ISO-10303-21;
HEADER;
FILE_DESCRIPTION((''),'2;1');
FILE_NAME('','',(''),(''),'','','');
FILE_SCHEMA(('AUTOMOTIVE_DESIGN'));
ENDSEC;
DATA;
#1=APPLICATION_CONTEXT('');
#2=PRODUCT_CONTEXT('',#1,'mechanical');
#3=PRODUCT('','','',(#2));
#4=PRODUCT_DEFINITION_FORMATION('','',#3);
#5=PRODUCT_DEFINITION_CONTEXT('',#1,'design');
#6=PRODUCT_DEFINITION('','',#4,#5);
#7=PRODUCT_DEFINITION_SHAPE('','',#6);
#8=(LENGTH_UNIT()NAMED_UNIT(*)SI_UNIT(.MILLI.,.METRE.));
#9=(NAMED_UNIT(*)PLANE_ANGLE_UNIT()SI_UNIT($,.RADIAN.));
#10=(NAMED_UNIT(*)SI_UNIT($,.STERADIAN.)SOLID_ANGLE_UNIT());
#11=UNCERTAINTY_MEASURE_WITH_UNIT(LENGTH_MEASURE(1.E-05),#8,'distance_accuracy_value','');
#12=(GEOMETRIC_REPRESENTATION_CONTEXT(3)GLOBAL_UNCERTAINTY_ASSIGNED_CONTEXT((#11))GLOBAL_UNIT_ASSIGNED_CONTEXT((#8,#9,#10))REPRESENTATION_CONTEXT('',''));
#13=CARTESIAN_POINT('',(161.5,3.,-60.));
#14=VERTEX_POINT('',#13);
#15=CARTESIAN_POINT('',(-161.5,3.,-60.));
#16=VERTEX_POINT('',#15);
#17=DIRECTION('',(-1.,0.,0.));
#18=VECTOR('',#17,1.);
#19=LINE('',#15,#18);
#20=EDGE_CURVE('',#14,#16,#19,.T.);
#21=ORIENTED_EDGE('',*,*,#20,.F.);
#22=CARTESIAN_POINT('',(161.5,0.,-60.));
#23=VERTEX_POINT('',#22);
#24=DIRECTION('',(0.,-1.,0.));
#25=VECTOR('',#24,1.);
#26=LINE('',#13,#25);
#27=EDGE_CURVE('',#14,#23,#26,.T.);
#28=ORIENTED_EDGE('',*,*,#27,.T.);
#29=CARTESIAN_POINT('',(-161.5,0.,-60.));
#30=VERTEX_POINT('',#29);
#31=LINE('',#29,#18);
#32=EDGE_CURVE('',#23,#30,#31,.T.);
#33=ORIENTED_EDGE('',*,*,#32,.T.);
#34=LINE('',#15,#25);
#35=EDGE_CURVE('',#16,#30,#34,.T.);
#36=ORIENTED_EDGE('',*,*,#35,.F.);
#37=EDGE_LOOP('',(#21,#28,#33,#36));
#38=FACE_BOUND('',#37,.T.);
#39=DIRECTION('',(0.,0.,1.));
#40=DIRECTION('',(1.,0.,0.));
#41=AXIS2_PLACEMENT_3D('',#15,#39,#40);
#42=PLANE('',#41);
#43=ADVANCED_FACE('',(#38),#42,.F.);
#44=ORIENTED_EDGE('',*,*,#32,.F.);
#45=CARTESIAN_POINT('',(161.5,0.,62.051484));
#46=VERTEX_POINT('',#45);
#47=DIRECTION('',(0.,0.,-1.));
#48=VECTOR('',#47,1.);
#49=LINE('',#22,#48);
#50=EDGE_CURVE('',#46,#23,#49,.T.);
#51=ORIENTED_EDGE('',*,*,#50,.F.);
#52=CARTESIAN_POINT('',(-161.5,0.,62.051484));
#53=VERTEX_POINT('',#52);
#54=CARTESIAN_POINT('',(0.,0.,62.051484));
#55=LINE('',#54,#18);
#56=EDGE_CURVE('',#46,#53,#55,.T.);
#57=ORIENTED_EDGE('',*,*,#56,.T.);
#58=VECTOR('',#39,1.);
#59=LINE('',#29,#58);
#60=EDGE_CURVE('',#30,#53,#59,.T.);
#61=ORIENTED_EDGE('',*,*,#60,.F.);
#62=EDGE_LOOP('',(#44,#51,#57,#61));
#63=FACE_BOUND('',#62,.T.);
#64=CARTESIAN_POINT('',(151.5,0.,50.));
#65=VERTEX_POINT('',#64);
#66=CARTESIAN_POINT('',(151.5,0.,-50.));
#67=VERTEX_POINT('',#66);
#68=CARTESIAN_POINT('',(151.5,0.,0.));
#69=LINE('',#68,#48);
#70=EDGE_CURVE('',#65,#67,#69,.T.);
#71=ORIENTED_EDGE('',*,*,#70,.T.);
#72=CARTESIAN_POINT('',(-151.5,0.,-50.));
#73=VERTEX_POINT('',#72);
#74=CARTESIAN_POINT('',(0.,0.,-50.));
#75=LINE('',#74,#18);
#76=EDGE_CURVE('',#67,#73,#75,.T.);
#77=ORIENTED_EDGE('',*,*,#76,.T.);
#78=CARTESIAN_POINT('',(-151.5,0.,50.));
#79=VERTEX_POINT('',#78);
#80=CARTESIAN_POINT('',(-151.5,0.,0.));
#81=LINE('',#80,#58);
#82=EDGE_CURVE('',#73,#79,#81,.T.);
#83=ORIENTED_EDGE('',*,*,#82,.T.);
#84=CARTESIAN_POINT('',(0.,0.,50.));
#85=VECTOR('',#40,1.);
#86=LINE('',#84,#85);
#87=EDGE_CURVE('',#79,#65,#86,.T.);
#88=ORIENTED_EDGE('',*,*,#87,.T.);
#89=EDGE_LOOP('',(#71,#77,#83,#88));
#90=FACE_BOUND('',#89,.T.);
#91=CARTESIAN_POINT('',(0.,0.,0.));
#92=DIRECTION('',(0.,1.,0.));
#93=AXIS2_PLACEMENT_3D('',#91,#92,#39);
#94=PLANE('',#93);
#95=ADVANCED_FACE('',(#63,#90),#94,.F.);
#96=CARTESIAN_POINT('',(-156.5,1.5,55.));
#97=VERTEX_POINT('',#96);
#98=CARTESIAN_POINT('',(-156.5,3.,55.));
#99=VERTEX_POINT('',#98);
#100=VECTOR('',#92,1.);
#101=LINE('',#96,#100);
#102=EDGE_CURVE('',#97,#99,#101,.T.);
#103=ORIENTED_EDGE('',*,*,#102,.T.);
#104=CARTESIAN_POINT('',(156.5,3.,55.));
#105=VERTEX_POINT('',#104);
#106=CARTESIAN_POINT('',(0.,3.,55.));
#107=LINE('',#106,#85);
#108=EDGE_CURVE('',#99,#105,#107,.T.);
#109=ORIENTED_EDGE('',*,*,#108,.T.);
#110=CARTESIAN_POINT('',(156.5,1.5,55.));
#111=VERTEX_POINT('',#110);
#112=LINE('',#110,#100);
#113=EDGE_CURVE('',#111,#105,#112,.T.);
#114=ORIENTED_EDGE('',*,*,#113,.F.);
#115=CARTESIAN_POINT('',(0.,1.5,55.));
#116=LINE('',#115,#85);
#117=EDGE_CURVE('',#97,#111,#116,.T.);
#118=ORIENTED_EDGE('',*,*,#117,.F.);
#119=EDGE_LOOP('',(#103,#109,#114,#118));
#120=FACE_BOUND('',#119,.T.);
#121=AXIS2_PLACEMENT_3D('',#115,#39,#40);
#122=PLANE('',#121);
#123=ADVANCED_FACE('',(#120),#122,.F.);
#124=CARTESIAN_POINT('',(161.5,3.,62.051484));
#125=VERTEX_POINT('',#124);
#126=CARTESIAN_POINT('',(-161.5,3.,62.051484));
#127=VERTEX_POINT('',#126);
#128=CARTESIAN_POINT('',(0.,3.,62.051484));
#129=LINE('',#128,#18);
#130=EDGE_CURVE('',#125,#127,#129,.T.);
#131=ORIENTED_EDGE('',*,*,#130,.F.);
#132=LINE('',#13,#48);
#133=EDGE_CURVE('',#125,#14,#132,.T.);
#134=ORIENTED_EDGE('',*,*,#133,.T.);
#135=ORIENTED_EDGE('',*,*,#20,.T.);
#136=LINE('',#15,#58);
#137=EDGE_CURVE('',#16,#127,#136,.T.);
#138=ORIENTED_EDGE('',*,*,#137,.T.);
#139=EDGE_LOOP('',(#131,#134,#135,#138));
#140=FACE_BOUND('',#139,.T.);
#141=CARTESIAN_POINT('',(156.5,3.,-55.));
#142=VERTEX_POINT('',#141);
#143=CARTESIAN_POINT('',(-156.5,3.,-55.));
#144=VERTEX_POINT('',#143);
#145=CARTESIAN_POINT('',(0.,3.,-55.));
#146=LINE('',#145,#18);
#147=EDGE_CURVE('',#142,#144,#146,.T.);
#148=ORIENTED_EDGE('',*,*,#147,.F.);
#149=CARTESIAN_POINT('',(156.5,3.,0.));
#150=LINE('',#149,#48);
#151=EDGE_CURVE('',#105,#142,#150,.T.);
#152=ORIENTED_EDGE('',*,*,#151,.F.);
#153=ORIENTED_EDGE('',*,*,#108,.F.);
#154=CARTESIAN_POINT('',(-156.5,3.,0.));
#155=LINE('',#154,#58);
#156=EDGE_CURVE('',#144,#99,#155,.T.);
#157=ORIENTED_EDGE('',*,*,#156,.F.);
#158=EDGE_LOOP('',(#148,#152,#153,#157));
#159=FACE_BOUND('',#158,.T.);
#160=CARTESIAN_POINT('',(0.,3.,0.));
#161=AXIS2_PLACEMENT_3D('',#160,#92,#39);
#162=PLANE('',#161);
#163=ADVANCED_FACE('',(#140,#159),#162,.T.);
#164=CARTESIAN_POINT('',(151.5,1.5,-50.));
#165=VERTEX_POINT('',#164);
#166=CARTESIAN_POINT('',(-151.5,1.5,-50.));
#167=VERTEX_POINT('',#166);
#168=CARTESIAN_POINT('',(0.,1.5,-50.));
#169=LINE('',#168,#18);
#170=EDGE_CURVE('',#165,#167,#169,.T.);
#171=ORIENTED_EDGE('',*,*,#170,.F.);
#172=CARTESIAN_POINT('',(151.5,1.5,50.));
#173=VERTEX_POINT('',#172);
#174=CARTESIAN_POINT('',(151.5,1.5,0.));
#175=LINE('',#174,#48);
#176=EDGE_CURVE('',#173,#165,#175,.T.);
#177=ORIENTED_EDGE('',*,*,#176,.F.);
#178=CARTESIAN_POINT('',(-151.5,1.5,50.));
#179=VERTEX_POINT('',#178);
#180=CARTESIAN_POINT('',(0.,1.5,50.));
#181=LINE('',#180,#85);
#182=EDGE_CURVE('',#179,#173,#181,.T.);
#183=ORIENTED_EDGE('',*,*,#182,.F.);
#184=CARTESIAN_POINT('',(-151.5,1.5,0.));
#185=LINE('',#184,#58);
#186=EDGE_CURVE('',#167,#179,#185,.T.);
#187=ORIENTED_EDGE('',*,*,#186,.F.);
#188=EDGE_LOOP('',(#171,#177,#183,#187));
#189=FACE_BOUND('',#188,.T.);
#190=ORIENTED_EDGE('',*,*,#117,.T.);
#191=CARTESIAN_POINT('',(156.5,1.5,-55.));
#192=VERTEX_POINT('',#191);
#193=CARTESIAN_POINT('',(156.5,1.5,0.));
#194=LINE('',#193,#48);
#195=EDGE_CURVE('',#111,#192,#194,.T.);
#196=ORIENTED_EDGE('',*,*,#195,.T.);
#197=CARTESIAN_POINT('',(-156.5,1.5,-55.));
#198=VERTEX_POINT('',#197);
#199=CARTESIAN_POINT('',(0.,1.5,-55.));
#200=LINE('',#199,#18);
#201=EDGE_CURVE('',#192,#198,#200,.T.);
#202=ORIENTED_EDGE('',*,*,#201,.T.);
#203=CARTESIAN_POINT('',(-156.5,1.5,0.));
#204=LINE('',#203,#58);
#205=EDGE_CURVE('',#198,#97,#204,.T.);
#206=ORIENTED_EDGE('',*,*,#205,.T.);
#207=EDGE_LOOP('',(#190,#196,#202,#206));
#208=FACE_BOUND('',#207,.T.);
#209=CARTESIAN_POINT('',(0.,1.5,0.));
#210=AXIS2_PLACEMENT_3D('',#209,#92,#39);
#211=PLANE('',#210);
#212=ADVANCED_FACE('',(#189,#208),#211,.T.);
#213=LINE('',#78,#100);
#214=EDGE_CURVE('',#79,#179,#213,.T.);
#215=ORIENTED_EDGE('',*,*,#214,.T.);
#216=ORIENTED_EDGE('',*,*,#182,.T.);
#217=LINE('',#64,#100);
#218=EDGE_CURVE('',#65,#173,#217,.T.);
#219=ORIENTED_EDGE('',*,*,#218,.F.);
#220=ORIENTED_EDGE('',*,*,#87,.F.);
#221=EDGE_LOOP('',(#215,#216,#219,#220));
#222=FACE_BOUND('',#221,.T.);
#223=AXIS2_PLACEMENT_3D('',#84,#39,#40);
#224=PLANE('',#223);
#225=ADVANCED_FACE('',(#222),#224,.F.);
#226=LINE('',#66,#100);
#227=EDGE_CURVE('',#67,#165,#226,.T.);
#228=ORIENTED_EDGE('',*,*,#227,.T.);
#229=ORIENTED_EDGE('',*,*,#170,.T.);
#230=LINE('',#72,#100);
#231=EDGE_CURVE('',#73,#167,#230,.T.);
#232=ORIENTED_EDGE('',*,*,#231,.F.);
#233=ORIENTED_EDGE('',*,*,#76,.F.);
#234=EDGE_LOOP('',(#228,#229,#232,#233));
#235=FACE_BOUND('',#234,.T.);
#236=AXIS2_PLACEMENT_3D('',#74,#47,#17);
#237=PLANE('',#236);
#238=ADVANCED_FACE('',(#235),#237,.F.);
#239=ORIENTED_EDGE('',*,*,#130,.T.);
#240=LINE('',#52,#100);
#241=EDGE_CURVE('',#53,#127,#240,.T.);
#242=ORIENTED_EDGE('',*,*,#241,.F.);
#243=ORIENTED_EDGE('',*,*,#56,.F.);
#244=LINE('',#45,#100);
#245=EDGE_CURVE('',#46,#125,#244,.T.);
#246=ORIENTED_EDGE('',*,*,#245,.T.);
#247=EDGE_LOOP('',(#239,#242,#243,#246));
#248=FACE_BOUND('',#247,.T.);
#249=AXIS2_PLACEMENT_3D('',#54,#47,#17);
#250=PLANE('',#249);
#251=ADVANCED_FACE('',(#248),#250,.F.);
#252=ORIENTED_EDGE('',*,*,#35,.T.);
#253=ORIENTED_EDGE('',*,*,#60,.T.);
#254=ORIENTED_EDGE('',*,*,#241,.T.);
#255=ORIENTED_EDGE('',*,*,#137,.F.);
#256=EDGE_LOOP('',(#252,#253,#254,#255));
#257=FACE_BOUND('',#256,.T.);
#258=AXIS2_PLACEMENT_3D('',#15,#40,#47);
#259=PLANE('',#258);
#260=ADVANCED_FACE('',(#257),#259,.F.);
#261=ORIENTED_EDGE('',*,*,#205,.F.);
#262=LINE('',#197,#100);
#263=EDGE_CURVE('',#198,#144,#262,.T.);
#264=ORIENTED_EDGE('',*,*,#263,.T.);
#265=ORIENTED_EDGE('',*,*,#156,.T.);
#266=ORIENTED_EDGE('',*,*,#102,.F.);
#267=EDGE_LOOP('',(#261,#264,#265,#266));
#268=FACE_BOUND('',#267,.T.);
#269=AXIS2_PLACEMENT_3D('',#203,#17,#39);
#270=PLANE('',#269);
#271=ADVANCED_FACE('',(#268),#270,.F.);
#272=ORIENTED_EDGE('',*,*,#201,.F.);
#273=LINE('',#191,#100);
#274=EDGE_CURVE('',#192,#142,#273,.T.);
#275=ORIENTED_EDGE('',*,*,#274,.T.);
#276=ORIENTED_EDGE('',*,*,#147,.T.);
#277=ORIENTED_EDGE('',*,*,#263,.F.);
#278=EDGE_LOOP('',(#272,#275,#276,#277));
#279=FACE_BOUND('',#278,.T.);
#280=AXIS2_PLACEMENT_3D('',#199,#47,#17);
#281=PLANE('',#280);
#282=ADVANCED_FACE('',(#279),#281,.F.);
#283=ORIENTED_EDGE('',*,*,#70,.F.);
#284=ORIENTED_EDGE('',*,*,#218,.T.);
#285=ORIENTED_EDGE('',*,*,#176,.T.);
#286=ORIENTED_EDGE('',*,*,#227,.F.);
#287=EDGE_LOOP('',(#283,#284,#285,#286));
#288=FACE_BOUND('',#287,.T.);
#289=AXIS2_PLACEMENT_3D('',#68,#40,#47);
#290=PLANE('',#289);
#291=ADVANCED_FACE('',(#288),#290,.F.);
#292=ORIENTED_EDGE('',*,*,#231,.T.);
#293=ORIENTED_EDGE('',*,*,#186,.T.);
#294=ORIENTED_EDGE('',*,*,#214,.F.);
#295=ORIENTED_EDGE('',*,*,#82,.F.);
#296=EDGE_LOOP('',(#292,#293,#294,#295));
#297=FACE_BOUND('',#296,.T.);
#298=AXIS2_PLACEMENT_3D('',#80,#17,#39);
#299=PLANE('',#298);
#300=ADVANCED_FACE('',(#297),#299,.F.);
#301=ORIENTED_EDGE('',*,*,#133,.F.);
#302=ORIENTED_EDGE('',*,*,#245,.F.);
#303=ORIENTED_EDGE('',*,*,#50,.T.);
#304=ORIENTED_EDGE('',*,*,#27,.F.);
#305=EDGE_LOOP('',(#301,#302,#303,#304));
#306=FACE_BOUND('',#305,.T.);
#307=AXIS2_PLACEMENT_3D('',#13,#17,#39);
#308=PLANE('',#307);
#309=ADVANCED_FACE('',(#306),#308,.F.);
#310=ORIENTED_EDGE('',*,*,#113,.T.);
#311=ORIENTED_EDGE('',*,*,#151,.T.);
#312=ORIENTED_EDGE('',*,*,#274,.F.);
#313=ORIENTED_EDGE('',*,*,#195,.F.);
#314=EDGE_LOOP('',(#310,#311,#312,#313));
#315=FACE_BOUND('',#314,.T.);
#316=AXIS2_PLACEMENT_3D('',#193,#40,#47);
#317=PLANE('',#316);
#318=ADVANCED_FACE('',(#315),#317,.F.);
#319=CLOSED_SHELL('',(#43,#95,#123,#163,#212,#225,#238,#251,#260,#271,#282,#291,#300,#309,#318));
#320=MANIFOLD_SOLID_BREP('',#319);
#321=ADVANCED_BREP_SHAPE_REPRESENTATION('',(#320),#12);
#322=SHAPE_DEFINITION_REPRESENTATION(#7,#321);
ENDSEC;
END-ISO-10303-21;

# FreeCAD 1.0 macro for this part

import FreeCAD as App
import Part
import Sketcher
from FreeCAD import Vector
Q = App.Units.Quantity

doc = App.newDocument("Part")
body = doc.addObject("PartDesign::Body", "Body")

# Sketch on XZ plane
sketch1 = doc.addObject("Sketcher::SketchObject", "Sketch")
body.addObject(sketch1)
sketch1.AttachmentSupport = (doc.XZ_Plane, [""])
sketch1.MapMode = "FlatFace"
sketch1.addGeometry([
    Part.LineSegment(Vector(-162, -60, 0), Vector(-162, 60, 0)),
    Part.LineSegment(Vector(-162, 60, 0), Vector(162, 60, 0)),
    Part.LineSegment(Vector(162, 60, 0), Vector(162, -60, 0)),
    Part.LineSegment(Vector(162, -60, 0), Vector(-162, -60, 0)),
], False)
sketch1.addConstraint([
    Sketcher.Constraint("Coincident", 0, 2, 1, 1),
    Sketcher.Constraint("Coincident", 1, 2, 2, 1),
    Sketcher.Constraint("Coincident", 2, 2, 3, 1),
    Sketcher.Constraint("Coincident", 3, 2, 0, 1),
    Sketcher.Constraint("Vertical", 0),
    Sketcher.Constraint("Horizontal", 1),
    Sketcher.Constraint("Vertical", 2),
    Sketcher.Constraint("Horizontal", 3),
    Sketcher.Constraint("Symmetric", 0, 2, 2, 2, -1, 1),
    Sketcher.Constraint("DistanceX", 1, 1, 1, 2, Q("323 mm")),
    Sketcher.Constraint("DistanceY", 0, 1, 0, 2, Q("120 mm")),
])
pad1 = doc.addObject("PartDesign::Pad", "Pad")
body.addObject(pad1)
pad1.Profile = sketch1
pad1.Length = 3
pad1.Reversed = True

# Sketch on XZ plane
sketch2 = doc.addObject("Sketcher::SketchObject", "Sketch001")
body.addObject(sketch2)
sketch2.AttachmentSupport = (doc.XZ_Plane, [""])
sketch2.MapMode = "FlatFace"
sketch2.AttachmentOffset = App.Placement(Vector(0, 0, -3), App.Rotation())
sketch2.addGeometry([
    Part.LineSegment(Vector(-156, -55, 0), Vector(-156, 55, 0)),  # 0
    Part.LineSegment(Vector(-156, 55, 0), Vector(156, 55, 0)),  # 1
    Part.LineSegment(Vector(156, 55, 0), Vector(156, -55, 0)),  # 2
    Part.LineSegment(Vector(156, -55, 0), Vector(-156, -55, 0)),  # 3
    Part.LineSegment(Vector(152, 50, 0), Vector(-152, 50, 0)),  # 4
    Part.LineSegment(Vector(-152, 50, 0), Vector(-152, -50, 0)),  # 5
    Part.LineSegment(Vector(-152, -50, 0), Vector(152, -50, 0)),  # 6
    Part.LineSegment(Vector(152, -50, 0), Vector(152, 50, 0)),  # 7
], False)
sketch2.addConstraint([
    Sketcher.Constraint("Coincident", 0, 2, 1, 1),
    Sketcher.Constraint("Coincident", 1, 2, 2, 1),
    Sketcher.Constraint("Coincident", 2, 2, 3, 1),
    Sketcher.Constraint("Coincident", 3, 2, 0, 1),
    Sketcher.Constraint("Coincident", 4, 2, 5, 1),
    Sketcher.Constraint("Coincident", 5, 2, 6, 1),
    Sketcher.Constraint("Coincident", 6, 2, 7, 1),
    Sketcher.Constraint("Coincident", 7, 2, 4, 1),
    Sketcher.Constraint("Vertical", 0),
    Sketcher.Constraint("Horizontal", 1),
    Sketcher.Constraint("Vertical", 2),
    Sketcher.Constraint("Horizontal", 3),
    Sketcher.Constraint("Horizontal", 4),
    Sketcher.Constraint("Vertical", 5),
    Sketcher.Constraint("Horizontal", 6),
    Sketcher.Constraint("Vertical", 7),
    Sketcher.Constraint("Symmetric", 0, 2, 2, 2, -1, 1),
    Sketcher.Constraint("Symmetric", 4, 2, 6, 2, -1, 1),
    Sketcher.Constraint("DistanceX", 1, 1, 1, 2, Q("313 mm")),
    Sketcher.Constraint("DistanceX", 4, 2, 4, 1, Q("303 mm")),
    Sketcher.Constraint("DistanceY", 0, 1, 0, 2, Q("110 mm")),
    Sketcher.Constraint("DistanceY", 5, 2, 5, 1, Q("100 mm")),
])
pocket1 = doc.addObject("PartDesign::Pocket", "Pocket")
body.addObject(pocket1)
pocket1.Profile = sketch2
pocket1.Length = 1.5
pocket1.Reversed = True

# Sketch on XZ plane
sketch3 = doc.addObject("Sketcher::SketchObject", "Sketch002")
body.addObject(sketch3)
sketch3.AttachmentSupport = (doc.XZ_Plane, [""])
sketch3.MapMode = "FlatFace"
sketch3.AttachmentOffset = App.Placement(Vector(0, 0, -3), App.Rotation())
sketch3.addGeometry([
    Part.LineSegment(Vector(-152, -50, 0), Vector(-152, 50, 0)),
    Part.LineSegment(Vector(-152, 50, 0), Vector(152, 50, 0)),
    Part.LineSegment(Vector(152, 50, 0), Vector(152, -50, 0)),
    Part.LineSegment(Vector(152, -50, 0), Vector(-152, -50, 0)),
], False)
sketch3.addConstraint([
    Sketcher.Constraint("Coincident", 0, 2, 1, 1),
    Sketcher.Constraint("Coincident", 1, 2, 2, 1),
    Sketcher.Constraint("Coincident", 2, 2, 3, 1),
    Sketcher.Constraint("Coincident", 3, 2, 0, 1),
    Sketcher.Constraint("Vertical", 0),
    Sketcher.Constraint("Horizontal", 1),
    Sketcher.Constraint("Vertical", 2),
    Sketcher.Constraint("Horizontal", 3),
    Sketcher.Constraint("Symmetric", 0, 2, 2, 2, -1, 1),
    Sketcher.Constraint("DistanceX", 1, 1, 1, 2, Q("303 mm")),
    Sketcher.Constraint("DistanceY", 0, 1, 0, 2, Q("100 mm")),
])
pocket2 = doc.addObject("PartDesign::Pocket", "Pocket001")
body.addObject(pocket2)
pocket2.Profile = sketch3
pocket2.Type = "ThroughAll"
pocket2.Midplane = True

# Sketch on XZ plane
sketch4 = doc.addObject("Sketcher::SketchObject", "Sketch003")
body.addObject(sketch4)
sketch4.AttachmentSupport = (doc.XZ_Plane, [""])
sketch4.MapMode = "FlatFace"
sketch4.AttachmentOffset = App.Placement(Vector(0, 0, -3), App.Rotation())
sketch4.addGeometry([
    Part.LineSegment(Vector(-161.5, 60, 0), Vector(-161.5, 62.1, 0)),
    Part.LineSegment(Vector(-161.5, 62.1, 0), Vector(161.5, 62.1, 0)),
    Part.LineSegment(Vector(161.5, 62.1, 0), Vector(161.5, 60, 0)),
    Part.LineSegment(Vector(161.5, 60, 0), Vector(-161.5, 60, 0)),
], False)
sketch4.addConstraint([
    Sketcher.Constraint("Coincident", 0, 2, 1, 1),
    Sketcher.Constraint("Coincident", 1, 2, 2, 1),
    Sketcher.Constraint("Coincident", 2, 2, 3, 1),
    Sketcher.Constraint("Coincident", 3, 2, 0, 1),
    Sketcher.Constraint("Vertical", 0),
    Sketcher.Constraint("Horizontal", 1),
    Sketcher.Constraint("Vertical", 2),
    Sketcher.Constraint("Horizontal", 3),
    Sketcher.Constraint("DistanceX", 1, 1, 1, 2, Q("323 mm")),
    Sketcher.Constraint("DistanceY", -1, 1, 2, 2, Q("60 mm")),
    Sketcher.Constraint("DistanceX", 0, 2, -1, 1, Q("161.5 mm")),
    Sketcher.Constraint("DistanceY", 0, 1, 0, 2, Q("2.051484 mm")),
])
pad2 = doc.addObject("PartDesign::Pad", "Pad001")
body.addObject(pad2)
pad2.Profile = sketch4
pad2.Length = 3

doc.recompute()
